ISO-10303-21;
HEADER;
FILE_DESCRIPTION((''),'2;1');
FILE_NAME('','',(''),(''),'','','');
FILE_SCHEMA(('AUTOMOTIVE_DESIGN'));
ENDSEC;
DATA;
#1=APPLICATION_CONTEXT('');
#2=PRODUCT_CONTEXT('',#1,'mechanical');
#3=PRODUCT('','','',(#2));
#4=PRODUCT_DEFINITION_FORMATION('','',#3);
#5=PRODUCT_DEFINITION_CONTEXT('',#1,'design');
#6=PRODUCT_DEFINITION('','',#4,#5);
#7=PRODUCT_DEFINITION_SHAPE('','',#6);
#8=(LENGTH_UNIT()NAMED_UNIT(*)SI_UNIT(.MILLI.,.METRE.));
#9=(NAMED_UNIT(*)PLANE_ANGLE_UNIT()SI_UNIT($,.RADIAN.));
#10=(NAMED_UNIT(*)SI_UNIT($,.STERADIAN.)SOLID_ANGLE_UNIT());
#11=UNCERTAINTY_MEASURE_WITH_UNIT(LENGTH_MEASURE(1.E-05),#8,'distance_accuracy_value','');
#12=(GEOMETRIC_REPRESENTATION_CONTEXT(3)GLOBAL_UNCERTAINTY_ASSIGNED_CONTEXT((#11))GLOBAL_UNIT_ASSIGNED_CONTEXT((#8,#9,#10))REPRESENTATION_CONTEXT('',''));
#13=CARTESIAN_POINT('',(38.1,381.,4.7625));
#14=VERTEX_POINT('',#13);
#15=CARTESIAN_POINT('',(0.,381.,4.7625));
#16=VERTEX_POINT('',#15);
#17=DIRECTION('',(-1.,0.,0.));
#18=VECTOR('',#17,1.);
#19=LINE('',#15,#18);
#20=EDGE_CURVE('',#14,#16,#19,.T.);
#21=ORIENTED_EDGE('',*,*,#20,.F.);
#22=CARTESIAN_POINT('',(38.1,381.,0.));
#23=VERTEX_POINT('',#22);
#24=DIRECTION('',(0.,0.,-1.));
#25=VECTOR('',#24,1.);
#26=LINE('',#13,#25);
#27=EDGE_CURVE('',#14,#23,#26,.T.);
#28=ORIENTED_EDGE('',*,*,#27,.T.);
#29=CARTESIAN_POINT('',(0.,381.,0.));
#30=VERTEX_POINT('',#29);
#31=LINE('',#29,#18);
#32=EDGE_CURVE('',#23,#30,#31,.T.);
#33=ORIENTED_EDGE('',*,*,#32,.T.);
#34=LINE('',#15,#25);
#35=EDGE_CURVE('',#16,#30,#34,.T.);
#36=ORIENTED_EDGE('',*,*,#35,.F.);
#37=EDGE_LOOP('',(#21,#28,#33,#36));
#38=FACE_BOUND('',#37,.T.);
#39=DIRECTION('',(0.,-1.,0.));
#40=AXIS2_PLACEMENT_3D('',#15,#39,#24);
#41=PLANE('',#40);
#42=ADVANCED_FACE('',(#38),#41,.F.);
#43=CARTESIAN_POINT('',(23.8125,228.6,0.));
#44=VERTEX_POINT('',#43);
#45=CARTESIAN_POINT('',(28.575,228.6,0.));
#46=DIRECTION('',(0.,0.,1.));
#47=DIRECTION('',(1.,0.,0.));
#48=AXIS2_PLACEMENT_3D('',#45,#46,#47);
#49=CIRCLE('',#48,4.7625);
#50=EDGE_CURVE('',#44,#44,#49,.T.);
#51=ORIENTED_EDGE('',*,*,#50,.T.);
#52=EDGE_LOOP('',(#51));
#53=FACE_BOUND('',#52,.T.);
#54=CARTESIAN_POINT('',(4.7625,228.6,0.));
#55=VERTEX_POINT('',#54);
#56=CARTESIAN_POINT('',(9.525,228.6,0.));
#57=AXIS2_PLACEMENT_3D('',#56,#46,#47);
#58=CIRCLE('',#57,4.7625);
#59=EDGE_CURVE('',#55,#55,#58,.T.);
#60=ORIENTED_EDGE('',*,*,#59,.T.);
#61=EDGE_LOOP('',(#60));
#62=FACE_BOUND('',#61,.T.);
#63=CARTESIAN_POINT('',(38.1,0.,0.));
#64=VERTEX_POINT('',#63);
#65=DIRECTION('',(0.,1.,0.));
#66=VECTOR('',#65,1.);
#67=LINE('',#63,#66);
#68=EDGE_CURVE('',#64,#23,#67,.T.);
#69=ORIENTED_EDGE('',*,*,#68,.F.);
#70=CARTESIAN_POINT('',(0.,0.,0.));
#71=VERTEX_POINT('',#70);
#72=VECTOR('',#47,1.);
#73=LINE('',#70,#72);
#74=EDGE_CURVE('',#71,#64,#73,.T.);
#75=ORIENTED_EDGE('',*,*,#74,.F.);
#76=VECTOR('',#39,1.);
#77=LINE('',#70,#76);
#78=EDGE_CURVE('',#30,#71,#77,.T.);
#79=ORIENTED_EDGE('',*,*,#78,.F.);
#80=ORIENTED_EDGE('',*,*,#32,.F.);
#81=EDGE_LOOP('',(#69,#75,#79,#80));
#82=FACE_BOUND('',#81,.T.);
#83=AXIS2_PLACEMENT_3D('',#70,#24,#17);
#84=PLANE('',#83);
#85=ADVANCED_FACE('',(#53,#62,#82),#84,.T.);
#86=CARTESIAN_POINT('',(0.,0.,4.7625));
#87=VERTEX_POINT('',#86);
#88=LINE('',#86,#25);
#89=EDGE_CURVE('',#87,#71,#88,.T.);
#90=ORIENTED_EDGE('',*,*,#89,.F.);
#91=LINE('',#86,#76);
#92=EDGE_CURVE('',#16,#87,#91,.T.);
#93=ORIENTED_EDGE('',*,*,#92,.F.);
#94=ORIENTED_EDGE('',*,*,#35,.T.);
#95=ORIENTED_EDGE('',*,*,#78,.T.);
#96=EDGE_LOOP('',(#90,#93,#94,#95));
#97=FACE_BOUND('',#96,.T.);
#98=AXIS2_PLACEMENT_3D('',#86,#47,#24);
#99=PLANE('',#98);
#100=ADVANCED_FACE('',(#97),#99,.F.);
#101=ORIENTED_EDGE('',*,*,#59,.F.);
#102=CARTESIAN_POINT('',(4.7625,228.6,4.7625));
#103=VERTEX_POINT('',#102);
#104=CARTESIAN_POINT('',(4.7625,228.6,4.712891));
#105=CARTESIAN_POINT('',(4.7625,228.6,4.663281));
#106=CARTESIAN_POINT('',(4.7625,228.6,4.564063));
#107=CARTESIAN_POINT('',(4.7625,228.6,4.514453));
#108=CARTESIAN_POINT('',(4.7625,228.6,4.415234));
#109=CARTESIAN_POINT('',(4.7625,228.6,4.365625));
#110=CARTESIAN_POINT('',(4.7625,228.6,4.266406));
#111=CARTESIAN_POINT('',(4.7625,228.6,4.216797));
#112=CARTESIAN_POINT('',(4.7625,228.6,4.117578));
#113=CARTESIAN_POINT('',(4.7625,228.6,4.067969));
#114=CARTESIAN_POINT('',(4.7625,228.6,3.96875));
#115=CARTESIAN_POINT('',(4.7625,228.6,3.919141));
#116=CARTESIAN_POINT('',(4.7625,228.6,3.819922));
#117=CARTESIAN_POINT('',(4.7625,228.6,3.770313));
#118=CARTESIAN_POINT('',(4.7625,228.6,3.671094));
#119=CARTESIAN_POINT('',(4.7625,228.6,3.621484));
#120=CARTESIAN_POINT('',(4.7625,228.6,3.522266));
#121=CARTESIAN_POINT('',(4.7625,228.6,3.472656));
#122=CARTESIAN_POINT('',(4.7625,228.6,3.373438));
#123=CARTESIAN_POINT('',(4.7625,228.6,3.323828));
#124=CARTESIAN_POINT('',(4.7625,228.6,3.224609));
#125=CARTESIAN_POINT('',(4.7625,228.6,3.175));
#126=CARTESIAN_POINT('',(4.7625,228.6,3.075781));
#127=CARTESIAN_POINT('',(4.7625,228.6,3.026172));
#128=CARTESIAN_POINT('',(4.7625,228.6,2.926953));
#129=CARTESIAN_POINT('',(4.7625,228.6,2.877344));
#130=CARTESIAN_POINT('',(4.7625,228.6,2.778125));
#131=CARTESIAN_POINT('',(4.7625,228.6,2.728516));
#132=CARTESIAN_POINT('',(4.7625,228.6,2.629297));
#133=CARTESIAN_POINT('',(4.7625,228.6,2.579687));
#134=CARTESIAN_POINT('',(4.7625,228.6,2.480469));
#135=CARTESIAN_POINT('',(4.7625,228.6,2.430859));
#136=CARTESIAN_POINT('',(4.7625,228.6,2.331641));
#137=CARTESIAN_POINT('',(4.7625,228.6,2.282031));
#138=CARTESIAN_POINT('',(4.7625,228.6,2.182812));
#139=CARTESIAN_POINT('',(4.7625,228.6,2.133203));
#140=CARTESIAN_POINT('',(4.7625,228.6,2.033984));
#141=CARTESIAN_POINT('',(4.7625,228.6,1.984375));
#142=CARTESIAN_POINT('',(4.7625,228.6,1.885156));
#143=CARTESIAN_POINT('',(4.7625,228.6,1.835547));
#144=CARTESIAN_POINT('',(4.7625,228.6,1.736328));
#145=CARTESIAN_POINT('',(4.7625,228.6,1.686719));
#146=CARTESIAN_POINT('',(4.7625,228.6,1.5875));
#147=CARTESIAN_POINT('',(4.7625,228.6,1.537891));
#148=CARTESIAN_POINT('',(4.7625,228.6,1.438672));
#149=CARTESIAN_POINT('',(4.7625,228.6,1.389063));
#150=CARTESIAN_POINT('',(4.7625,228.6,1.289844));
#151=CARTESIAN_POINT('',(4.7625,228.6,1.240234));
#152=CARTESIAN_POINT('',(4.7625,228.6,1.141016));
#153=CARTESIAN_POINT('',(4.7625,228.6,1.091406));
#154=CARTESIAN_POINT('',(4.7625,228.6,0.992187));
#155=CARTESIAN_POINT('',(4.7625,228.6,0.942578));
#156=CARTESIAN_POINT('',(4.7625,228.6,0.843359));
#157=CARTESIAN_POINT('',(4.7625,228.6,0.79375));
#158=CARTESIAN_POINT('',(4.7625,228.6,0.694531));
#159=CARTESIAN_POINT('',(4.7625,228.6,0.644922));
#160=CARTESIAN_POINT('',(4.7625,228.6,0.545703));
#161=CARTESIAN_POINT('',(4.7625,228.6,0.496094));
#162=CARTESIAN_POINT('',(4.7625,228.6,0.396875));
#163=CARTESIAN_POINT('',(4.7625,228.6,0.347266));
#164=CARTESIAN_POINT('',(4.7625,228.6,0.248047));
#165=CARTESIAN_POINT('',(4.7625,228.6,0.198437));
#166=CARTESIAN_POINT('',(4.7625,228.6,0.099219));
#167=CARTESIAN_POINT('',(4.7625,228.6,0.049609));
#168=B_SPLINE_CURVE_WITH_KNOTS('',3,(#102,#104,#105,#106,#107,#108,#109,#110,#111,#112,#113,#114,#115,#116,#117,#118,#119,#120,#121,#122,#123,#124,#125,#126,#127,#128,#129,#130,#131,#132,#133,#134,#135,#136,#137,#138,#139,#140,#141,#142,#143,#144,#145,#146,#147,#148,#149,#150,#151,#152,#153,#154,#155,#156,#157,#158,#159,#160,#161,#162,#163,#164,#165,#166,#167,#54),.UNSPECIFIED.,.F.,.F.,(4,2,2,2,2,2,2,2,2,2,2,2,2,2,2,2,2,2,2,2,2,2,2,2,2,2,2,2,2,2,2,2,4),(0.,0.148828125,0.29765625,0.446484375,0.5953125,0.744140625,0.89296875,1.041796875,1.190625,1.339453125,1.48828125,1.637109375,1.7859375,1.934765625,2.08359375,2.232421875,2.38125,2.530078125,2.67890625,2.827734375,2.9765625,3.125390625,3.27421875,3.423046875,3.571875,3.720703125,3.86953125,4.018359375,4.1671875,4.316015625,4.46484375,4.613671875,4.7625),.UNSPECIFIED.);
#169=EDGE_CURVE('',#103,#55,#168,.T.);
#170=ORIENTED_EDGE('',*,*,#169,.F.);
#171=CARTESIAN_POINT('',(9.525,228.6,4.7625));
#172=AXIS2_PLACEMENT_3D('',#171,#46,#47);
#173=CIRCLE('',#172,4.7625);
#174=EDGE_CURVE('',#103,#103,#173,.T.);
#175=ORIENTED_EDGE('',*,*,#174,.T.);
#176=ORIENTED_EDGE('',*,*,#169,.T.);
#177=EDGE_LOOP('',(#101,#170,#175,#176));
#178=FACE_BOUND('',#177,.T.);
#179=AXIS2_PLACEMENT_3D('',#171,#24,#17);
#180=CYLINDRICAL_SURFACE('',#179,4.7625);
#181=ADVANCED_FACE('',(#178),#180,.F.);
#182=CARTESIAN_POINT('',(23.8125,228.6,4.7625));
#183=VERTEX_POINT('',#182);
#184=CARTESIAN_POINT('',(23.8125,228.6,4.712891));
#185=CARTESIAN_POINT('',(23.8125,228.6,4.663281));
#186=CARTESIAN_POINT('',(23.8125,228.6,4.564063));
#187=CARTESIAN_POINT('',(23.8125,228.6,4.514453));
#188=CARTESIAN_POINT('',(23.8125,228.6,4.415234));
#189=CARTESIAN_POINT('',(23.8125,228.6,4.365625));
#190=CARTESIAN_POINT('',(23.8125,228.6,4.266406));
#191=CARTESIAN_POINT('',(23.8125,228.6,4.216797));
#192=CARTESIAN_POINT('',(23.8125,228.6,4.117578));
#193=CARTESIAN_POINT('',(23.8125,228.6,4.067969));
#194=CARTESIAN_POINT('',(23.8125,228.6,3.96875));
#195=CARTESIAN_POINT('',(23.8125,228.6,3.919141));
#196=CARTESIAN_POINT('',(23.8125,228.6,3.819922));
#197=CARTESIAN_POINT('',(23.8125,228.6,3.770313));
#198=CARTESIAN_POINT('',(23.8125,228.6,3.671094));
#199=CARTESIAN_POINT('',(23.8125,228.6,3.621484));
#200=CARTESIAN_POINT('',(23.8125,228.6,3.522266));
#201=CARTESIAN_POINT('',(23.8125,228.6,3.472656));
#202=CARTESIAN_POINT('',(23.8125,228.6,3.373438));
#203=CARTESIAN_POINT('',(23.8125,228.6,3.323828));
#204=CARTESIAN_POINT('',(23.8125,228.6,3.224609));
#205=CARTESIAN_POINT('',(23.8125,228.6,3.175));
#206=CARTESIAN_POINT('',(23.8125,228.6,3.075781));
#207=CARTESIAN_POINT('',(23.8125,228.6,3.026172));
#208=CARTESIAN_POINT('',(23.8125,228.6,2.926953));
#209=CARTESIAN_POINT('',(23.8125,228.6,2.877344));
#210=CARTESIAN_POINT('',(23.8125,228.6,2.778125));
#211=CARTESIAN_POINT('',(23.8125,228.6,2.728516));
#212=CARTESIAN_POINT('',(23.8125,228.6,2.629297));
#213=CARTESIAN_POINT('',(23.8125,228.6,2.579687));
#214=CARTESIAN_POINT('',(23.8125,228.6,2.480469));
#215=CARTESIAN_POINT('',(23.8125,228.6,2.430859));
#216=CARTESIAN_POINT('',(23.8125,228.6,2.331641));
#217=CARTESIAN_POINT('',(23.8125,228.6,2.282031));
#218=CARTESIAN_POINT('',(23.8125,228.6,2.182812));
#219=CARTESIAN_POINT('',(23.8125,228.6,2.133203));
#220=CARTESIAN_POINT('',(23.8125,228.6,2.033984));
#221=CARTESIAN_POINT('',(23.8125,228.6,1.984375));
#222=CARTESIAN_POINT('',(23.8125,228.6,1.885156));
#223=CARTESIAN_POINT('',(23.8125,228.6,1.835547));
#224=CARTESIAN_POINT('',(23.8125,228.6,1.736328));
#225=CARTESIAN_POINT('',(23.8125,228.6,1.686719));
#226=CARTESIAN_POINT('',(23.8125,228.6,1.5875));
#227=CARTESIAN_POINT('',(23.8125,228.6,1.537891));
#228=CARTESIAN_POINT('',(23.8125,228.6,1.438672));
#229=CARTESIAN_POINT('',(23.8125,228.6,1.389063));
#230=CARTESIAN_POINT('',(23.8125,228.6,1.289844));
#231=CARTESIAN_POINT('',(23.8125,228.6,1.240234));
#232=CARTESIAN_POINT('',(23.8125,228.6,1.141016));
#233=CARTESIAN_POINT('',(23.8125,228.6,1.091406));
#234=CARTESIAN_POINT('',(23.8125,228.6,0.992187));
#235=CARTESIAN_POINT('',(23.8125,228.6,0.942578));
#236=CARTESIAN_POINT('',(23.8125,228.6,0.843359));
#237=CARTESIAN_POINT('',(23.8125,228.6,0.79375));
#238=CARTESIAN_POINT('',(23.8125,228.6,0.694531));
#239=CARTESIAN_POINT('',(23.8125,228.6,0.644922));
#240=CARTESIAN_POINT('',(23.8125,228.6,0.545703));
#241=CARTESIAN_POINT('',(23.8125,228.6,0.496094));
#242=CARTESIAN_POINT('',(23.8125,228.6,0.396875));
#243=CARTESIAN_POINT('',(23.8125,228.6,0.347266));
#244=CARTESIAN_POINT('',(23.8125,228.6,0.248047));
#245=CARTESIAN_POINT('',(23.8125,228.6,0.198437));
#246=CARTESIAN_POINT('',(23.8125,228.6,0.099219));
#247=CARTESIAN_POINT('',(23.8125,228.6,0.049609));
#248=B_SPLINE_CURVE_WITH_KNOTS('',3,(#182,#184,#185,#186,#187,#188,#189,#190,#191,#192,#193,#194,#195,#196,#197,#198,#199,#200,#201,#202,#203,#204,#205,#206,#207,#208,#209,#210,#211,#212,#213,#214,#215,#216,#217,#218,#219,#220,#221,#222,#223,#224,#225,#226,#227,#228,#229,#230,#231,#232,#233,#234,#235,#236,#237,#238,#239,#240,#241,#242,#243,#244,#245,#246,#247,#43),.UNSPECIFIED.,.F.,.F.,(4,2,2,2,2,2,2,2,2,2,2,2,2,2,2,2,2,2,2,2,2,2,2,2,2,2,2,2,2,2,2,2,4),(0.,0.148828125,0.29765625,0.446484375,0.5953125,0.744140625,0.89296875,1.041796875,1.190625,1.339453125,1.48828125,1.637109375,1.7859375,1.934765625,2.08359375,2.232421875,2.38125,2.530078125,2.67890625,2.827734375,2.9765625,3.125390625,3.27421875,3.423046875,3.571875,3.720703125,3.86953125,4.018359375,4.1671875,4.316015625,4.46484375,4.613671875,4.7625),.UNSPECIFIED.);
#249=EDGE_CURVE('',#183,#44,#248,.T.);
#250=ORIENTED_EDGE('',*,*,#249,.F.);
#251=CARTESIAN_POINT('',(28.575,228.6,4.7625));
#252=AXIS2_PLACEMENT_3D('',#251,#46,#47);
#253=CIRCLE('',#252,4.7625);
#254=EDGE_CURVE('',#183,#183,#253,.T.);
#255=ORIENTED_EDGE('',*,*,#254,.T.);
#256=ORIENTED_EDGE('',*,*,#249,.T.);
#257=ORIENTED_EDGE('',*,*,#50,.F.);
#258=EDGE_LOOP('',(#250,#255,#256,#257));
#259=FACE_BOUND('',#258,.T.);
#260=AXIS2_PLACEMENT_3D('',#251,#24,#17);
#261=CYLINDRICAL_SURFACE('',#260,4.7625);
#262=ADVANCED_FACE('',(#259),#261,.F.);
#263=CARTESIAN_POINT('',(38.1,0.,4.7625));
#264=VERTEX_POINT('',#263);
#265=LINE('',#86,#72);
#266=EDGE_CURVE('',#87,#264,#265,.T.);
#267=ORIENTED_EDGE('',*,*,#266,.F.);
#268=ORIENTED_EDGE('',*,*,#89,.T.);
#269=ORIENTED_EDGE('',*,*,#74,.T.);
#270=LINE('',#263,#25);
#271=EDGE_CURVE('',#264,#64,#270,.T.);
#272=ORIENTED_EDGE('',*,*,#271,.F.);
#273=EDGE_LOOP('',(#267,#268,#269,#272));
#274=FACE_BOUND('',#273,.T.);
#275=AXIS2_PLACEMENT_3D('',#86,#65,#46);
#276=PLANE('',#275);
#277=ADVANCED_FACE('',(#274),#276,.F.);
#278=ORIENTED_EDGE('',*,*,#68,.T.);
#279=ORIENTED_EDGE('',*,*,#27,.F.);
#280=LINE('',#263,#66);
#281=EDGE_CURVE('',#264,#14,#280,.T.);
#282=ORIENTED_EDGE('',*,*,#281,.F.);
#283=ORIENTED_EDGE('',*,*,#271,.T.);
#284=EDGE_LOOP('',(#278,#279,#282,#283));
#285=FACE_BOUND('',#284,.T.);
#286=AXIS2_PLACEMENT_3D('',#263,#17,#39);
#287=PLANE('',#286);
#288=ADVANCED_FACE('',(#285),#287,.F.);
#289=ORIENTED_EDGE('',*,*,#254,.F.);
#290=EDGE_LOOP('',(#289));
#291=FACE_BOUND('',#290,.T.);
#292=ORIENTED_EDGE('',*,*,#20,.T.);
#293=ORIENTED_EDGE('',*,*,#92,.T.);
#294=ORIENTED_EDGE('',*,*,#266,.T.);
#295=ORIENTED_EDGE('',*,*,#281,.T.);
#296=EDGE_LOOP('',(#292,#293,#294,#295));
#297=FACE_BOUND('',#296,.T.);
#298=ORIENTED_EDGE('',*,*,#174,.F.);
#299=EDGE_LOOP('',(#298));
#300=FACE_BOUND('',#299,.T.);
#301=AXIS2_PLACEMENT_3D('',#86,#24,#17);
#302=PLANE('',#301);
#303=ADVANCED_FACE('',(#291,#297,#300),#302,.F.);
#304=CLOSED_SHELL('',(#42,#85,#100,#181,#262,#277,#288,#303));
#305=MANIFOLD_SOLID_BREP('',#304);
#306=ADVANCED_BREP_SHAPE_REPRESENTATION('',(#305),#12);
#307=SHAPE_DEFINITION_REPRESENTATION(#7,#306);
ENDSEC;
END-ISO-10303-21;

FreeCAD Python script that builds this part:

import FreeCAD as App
import Part
import Sketcher
from FreeCAD import Vector
Q = App.Units.Quantity


def add_polygon(sketch, points):
    """Adds a closed chain of lines whose ends are joined by coincident constraints."""
    first, n = sketch.GeometryCount, len(points)
    for a, b in zip(points, points[1:] + points[:1]):
        sketch.addGeometry(Part.LineSegment(App.Vector(*a, 0), App.Vector(*b, 0)), False)
    for i in range(n):
        sketch.addConstraint(Sketcher.Constraint("Coincident", first + i, 2, first + (i + 1) % n, 1))

doc = App.newDocument("Part")
body = doc.addObject("PartDesign::Body", "Body")

sketch1 = body.newObject("Sketcher::SketchObject", "Sketch")
sketch1.AttachmentSupport = (doc.getObject("XY_Plane"), [""])
sketch1.MapMode = "FlatFace"
add_polygon(sketch1, [(0, 381), (0, 0), (38.1, 0), (38.1, 381)])
sketch1.addGeometry(Part.Circle(Vector(9.525, 228.6, 0), Vector(0, 0, 1), 4.7625), False)
sketch1.addGeometry(Part.Circle(Vector(28.575, 228.6, 0), Vector(0, 0, 1), 4.7625), False)
sketch1.addConstraint(Sketcher.Constraint("Vertical", 0))
sketch1.addConstraint(Sketcher.Constraint("Horizontal", 1))
sketch1.addConstraint(Sketcher.Constraint("Vertical", 2))
sketch1.addConstraint(Sketcher.Constraint("Horizontal", 3))
sketch1.addConstraint(Sketcher.Constraint("Coincident", 0, 2, -1, 1))
sketch1.addConstraint(Sketcher.Constraint("Equal", 4, 5))
sketch1.addConstraint(Sketcher.Constraint("Horizontal", 4, 3, 5, 3))
sketch1.addConstraint(Sketcher.Constraint("DistanceY", 0, 2, 0, 1, Q("15 in")))
sketch1.addConstraint(Sketcher.Constraint("Diameter", 4, Q("0.375 in")))
sketch1.addConstraint(Sketcher.Constraint("DistanceX", 1, 1, 1, 2, Q("1.5 in")))
sketch1.addConstraint(Sketcher.Constraint("DistanceY", -1, 1, 4, 3, Q("9 in")))
sketch1.addConstraint(Sketcher.Constraint("DistanceX", 4, 3, 5, 3, Q("0.75 in")))
sketch1.addConstraint(Sketcher.Constraint("DistanceX", -1, 1, 4, 3, Q("0.375 in")))
pad1 = body.newObject("PartDesign::Pad", "Pad")
pad1.Profile = sketch1
pad1.Length = Q("0.1875 in")

doc.recompute()
